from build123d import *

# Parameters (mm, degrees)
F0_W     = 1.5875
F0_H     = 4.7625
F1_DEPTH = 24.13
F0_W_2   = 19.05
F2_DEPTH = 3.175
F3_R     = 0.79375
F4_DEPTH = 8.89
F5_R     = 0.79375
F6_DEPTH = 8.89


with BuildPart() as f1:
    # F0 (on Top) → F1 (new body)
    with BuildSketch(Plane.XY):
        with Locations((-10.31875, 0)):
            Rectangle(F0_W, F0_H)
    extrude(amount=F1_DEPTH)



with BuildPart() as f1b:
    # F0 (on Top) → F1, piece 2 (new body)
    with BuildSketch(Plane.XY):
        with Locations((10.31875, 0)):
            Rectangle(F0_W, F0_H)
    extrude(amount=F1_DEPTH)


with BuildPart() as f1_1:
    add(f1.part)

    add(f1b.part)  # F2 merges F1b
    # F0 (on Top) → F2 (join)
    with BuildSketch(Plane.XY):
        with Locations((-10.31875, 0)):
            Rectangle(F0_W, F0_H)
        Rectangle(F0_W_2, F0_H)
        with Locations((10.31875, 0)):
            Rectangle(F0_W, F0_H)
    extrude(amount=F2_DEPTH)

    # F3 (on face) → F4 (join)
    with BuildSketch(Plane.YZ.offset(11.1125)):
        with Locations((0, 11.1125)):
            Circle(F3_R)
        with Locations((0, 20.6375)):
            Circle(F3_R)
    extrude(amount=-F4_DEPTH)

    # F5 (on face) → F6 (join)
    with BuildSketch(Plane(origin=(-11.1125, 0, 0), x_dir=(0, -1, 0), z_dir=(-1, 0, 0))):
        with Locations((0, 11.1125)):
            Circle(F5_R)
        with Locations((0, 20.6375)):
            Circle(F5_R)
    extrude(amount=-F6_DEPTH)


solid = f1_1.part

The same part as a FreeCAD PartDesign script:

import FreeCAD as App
import Part
import Sketcher
from FreeCAD import Vector
Q = App.Units.Quantity


def add_polygon(sketch, points):
    """Adds a closed chain of lines whose ends are joined by coincident constraints."""
    first, n = sketch.GeometryCount, len(points)
    for a, b in zip(points, points[1:] + points[:1]):
        sketch.addGeometry(Part.LineSegment(App.Vector(*a, 0), App.Vector(*b, 0)), False)
    for i in range(n):
        sketch.addConstraint(Sketcher.Constraint("Coincident", first + i, 2, first + (i + 1) % n, 1))

doc = App.newDocument("Part")
body = doc.addObject("PartDesign::Body", "Body")

# Sketch on XY plane
sketch1 = body.newObject("Sketcher::SketchObject", "Sketch")
sketch1.AttachmentSupport = (doc.getObject("XY_Plane"), [""])
sketch1.MapMode = "FlatFace"
add_polygon(sketch1, [(-11.1, 2.4), (-11.1, -2.4), (-9.5, -2.4), (-9.5, 2.4)])  # lines 0-3
sketch1.addConstraint(Sketcher.Constraint("Vertical", 0))
sketch1.addConstraint(Sketcher.Constraint("Horizontal", 1))
sketch1.addConstraint(Sketcher.Constraint("Vertical", 2))
sketch1.addConstraint(Sketcher.Constraint("Horizontal", 3))
sketch1.addConstraint(Sketcher.Constraint("DistanceX", 1, 1, 1, 2, Q("0.0625 in")))
sketch1.addConstraint(Sketcher.Constraint("DistanceY", 0, 2, 0, 1, Q("0.1875 in")))
sketch1.addConstraint(Sketcher.Constraint("DistanceX", 0, 2, -1, 1, Q("0.4375 in")))
sketch1.addConstraint(Sketcher.Constraint("DistanceY", 0, 2, -1, 1, Q("0.09375 in")))
pad1 = body.newObject("PartDesign::Pad", "Pad")
pad1.Profile = sketch1
pad1.Length = Q("0.95 in")
body2 = doc.addObject("PartDesign::Body", "Body001")

# Sketch on XY plane
sketch2 = body2.newObject("Sketcher::SketchObject", "Sketch001")
sketch2.AttachmentSupport = (doc.getObject("XY_Plane001"), [""])
sketch2.MapMode = "FlatFace"
add_polygon(sketch2, [(9.5, 2.4), (9.5, -2.4), (11.1, -2.4), (11.1, 2.4)])  # lines 0-3
sketch2.addConstraint(Sketcher.Constraint("Vertical", 0))
sketch2.addConstraint(Sketcher.Constraint("Horizontal", 1))
sketch2.addConstraint(Sketcher.Constraint("Vertical", 2))
sketch2.addConstraint(Sketcher.Constraint("Horizontal", 3))
sketch2.addConstraint(Sketcher.Constraint("DistanceX", 1, 1, 1, 2, Q("0.0625 in")))
sketch2.addConstraint(Sketcher.Constraint("DistanceY", 0, 2, 0, 1, Q("0.1875 in")))
sketch2.addConstraint(Sketcher.Constraint("DistanceX", -1, 1, 0, 2, Q("0.375 in")))
sketch2.addConstraint(Sketcher.Constraint("DistanceY", 0, 2, -1, 1, Q("0.09375 in")))
pad2 = body2.newObject("PartDesign::Pad", "Pad001")
pad2.Profile = sketch2
pad2.Length = Q("0.95 in")
body.AllowCompound = True
doc.recompute()

boolean = body.newObject("PartDesign::Boolean", "Boolean")
boolean.Type = "Fuse"
boolean.addObjects([body2])

# Sketch on XY plane
sketch3 = body.newObject("Sketcher::SketchObject", "Sketch002")
sketch3.AttachmentSupport = (doc.getObject("XY_Plane"), [""])
sketch3.MapMode = "FlatFace"
add_polygon(sketch3, [(-11.1, 2.4), (-11.1, -2.4), (11.1, -2.4), (11.1, 2.4)])  # lines 0-3
sketch3.addConstraint(Sketcher.Constraint("Vertical", 0))
sketch3.addConstraint(Sketcher.Constraint("Horizontal", 1))
sketch3.addConstraint(Sketcher.Constraint("Vertical", 2))
sketch3.addConstraint(Sketcher.Constraint("Horizontal", 3))
sketch3.addConstraint(Sketcher.Constraint("Symmetric", 0, 2, 2, 2, -1, 1))
sketch3.addConstraint(Sketcher.Constraint("DistanceX", 1, 1, 1, 2, Q("0.875 in")))
sketch3.addConstraint(Sketcher.Constraint("DistanceY", 0, 2, 0, 1, Q("0.1875 in")))
pad3 = body.newObject("PartDesign::Pad", "Pad002")
pad3.Profile = sketch3
pad3.Length = Q("0.125 in")

# Sketch on YZ plane
sketch4 = body.newObject("Sketcher::SketchObject", "Sketch003")
sketch4.AttachmentSupport = (doc.getObject("YZ_Plane"), [""])
sketch4.MapMode = "FlatFace"
sketch4.AttachmentOffset = App.Placement(Vector(0, 0, 0.4375 * 25.4), App.Rotation())
sketch4.addGeometry(Part.Circle(Vector(0, 11.1, 0), Vector(0, 0, 1), 0.8), False)
sketch4.addGeometry(Part.Circle(Vector(0, 20.6, 0), Vector(0, 0, 1), 0.8), False)
sketch4.addConstraint(Sketcher.Constraint("Equal", 0, 1))
sketch4.addConstraint(Sketcher.Constraint("PointOnObject", 0, 3, -2))
sketch4.addConstraint(Sketcher.Constraint("PointOnObject", 1, 3, -2))
sketch4.addConstraint(Sketcher.Constraint("Diameter", 0, Q("0.0625 in")))
sketch4.addConstraint(Sketcher.Constraint("DistanceY", -1, 1, 0, 3, Q("0.4375 in")))
sketch4.addConstraint(Sketcher.Constraint("DistanceY", -1, 1, 1, 3, Q("0.8125 in")))
pad4 = body.newObject("PartDesign::Pad", "Pad003")
pad4.Profile = sketch4
pad4.Length = Q("0.35 in")
pad4.Reversed = True

# Sketch on YZ plane
sketch5 = body.newObject("Sketcher::SketchObject", "Sketch004")
sketch5.AttachmentSupport = (doc.getObject("YZ_Plane"), [""])
sketch5.MapMode = "FlatFace"
sketch5.AttachmentOffset = App.Placement(Vector(0, 0, -0.4375 * 25.4), App.Rotation())
sketch5.addGeometry(Part.Circle(Vector(0, 11.1, 0), Vector(0, 0, 1), 0.8), False)
sketch5.addGeometry(Part.Circle(Vector(0, 20.6, 0), Vector(0, 0, 1), 0.8), False)
sketch5.addConstraint(Sketcher.Constraint("Equal", 0, 1))
sketch5.addConstraint(Sketcher.Constraint("PointOnObject", 0, 3, -2))
sketch5.addConstraint(Sketcher.Constraint("PointOnObject", 1, 3, -2))
sketch5.addConstraint(Sketcher.Constraint("Diameter", 0, Q("0.0625 in")))
sketch5.addConstraint(Sketcher.Constraint("DistanceY", -1, 1, 0, 3, Q("0.4375 in")))
sketch5.addConstraint(Sketcher.Constraint("DistanceY", -1, 1, 1, 3, Q("0.8125 in")))
pad5 = body.newObject("PartDesign::Pad", "Pad004")
pad5.Profile = sketch5
pad5.Length = Q("0.35 in")

doc.recompute()
